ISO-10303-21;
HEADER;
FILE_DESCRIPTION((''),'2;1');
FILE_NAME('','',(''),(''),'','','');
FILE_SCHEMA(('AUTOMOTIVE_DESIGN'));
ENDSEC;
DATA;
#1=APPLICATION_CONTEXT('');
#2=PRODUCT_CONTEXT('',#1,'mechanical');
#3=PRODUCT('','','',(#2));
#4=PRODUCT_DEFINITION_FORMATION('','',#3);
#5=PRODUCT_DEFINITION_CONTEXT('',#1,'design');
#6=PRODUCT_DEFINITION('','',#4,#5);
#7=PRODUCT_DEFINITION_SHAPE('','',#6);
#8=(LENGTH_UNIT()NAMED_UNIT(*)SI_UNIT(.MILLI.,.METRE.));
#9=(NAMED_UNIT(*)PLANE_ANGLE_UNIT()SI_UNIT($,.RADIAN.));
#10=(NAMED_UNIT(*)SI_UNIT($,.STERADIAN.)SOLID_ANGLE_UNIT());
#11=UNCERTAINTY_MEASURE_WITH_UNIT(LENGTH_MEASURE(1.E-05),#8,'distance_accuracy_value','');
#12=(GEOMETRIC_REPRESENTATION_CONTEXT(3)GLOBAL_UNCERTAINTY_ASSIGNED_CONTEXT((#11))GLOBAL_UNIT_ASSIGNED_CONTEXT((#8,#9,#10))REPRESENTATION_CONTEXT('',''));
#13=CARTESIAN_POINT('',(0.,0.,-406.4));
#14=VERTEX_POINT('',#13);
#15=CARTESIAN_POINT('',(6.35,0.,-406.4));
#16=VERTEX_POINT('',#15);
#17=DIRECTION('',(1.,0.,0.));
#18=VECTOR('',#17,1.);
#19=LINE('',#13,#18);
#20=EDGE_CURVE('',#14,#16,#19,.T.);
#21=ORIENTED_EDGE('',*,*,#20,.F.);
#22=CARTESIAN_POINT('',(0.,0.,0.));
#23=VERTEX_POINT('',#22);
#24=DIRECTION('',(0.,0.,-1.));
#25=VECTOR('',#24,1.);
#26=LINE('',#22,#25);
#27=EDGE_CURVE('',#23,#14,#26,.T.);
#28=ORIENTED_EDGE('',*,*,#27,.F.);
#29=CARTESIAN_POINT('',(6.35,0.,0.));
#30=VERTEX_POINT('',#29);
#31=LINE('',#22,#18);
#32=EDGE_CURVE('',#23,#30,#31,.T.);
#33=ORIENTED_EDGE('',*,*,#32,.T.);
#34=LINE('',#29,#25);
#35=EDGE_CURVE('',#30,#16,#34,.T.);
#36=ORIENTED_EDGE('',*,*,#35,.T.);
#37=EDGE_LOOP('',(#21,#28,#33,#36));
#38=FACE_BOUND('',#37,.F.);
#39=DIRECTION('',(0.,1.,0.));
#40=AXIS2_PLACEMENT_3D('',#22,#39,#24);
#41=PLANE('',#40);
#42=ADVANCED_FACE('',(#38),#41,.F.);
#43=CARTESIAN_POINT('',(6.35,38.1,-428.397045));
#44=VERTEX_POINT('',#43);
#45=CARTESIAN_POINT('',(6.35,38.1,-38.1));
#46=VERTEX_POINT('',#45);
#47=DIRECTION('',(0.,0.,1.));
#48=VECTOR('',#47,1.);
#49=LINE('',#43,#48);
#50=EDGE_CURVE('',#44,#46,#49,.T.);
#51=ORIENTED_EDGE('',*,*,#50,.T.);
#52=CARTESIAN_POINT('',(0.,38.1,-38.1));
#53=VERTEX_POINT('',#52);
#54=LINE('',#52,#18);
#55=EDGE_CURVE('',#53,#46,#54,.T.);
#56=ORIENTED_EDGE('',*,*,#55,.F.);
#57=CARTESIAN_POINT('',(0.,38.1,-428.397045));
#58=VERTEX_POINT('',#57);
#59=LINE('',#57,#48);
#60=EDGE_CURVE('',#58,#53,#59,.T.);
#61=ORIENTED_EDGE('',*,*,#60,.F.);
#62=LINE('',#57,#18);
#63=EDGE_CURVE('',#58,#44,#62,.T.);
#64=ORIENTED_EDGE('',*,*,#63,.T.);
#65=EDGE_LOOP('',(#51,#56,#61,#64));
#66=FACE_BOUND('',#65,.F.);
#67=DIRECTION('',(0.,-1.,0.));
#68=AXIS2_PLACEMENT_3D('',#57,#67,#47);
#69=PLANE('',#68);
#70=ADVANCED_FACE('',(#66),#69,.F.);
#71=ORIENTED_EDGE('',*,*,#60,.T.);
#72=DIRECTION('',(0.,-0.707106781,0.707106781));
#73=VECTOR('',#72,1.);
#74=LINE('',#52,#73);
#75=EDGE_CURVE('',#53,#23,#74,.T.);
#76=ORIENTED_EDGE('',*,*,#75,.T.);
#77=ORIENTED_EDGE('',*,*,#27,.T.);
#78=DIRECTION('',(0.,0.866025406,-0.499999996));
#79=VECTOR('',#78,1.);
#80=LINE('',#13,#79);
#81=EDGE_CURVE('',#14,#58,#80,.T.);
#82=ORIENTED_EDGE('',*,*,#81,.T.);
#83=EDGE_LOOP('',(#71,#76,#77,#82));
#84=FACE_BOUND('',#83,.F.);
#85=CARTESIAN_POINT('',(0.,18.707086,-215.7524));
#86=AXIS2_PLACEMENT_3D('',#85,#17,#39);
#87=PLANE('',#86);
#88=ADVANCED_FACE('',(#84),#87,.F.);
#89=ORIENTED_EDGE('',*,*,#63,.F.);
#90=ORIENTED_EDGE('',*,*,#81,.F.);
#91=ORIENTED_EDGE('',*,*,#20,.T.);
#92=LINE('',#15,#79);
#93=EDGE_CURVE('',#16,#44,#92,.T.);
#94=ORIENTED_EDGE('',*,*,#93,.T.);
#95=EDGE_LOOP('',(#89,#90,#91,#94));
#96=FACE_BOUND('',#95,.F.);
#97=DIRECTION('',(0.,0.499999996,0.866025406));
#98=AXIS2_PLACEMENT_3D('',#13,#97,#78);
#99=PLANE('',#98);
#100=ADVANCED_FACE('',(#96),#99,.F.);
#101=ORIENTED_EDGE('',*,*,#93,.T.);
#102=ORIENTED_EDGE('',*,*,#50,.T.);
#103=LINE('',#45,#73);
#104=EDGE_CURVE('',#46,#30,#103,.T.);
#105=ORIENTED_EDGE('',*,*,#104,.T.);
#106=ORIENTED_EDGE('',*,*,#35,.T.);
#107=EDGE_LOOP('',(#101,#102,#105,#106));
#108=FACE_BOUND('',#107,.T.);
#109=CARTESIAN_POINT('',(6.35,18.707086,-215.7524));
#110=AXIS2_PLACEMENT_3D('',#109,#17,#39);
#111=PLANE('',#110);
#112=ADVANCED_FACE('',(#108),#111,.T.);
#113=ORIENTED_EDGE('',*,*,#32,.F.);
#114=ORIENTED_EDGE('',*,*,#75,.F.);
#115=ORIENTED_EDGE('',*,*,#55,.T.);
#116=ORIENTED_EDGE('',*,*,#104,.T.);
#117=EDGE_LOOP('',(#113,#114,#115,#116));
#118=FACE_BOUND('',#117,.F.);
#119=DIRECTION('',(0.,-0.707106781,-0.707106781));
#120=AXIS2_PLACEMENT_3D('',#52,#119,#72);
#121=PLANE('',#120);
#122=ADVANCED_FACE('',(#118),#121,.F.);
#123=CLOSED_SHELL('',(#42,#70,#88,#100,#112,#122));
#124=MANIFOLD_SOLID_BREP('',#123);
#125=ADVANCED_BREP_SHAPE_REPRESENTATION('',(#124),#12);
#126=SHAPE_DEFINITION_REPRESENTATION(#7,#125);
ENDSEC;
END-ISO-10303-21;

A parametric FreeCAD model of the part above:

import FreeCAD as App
import Part
import Sketcher
from FreeCAD import Vector
Q = App.Units.Quantity


def add_polygon(sketch, points):
    """Adds a closed chain of lines whose ends are joined by coincident constraints."""
    first, n = sketch.GeometryCount, len(points)
    for a, b in zip(points, points[1:] + points[:1]):
        sketch.addGeometry(Part.LineSegment(App.Vector(*a, 0), App.Vector(*b, 0)), False)
    for i in range(n):
        sketch.addConstraint(Sketcher.Constraint("Coincident", first + i, 2, first + (i + 1) % n, 1))

doc = App.newDocument("Part")
body = doc.addObject("PartDesign::Body", "Body")

# Sketch on YZ plane
sketch1 = body.newObject("Sketcher::SketchObject", "Sketch")
sketch1.AttachmentSupport = (doc.getObject("YZ_Plane"), [""])
sketch1.MapMode = "FlatFace"
add_polygon(sketch1, [(0, 0), (0, -406.4), (38.1, -428.397045), (38.1, -38.1)])  # lines 0-3
sketch1.addConstraint(Sketcher.Constraint("Vertical", 0))
sketch1.addConstraint(Sketcher.Constraint("Vertical", 2))
sketch1.addConstraint(Sketcher.Constraint("Coincident", 3, 2, -1, 1))
sketch1.addConstraint(Sketcher.Constraint("DistanceY", 0, 2, 0, 1, Q("16 in")))
sketch1.addConstraint(Sketcher.Constraint("Angle", 1, Q("-30 deg")))
sketch1.addConstraint(Sketcher.Constraint("Angle", 3, Q("135 deg")))
sketch1.addConstraint(Sketcher.Constraint("DistanceX", -1, 1, 1, 2, Q("1.5 in")))
pad1 = body.newObject("PartDesign::Pad", "Pad")
pad1.Profile = sketch1
pad1.Length = Q("0.25 in")

doc.recompute()
